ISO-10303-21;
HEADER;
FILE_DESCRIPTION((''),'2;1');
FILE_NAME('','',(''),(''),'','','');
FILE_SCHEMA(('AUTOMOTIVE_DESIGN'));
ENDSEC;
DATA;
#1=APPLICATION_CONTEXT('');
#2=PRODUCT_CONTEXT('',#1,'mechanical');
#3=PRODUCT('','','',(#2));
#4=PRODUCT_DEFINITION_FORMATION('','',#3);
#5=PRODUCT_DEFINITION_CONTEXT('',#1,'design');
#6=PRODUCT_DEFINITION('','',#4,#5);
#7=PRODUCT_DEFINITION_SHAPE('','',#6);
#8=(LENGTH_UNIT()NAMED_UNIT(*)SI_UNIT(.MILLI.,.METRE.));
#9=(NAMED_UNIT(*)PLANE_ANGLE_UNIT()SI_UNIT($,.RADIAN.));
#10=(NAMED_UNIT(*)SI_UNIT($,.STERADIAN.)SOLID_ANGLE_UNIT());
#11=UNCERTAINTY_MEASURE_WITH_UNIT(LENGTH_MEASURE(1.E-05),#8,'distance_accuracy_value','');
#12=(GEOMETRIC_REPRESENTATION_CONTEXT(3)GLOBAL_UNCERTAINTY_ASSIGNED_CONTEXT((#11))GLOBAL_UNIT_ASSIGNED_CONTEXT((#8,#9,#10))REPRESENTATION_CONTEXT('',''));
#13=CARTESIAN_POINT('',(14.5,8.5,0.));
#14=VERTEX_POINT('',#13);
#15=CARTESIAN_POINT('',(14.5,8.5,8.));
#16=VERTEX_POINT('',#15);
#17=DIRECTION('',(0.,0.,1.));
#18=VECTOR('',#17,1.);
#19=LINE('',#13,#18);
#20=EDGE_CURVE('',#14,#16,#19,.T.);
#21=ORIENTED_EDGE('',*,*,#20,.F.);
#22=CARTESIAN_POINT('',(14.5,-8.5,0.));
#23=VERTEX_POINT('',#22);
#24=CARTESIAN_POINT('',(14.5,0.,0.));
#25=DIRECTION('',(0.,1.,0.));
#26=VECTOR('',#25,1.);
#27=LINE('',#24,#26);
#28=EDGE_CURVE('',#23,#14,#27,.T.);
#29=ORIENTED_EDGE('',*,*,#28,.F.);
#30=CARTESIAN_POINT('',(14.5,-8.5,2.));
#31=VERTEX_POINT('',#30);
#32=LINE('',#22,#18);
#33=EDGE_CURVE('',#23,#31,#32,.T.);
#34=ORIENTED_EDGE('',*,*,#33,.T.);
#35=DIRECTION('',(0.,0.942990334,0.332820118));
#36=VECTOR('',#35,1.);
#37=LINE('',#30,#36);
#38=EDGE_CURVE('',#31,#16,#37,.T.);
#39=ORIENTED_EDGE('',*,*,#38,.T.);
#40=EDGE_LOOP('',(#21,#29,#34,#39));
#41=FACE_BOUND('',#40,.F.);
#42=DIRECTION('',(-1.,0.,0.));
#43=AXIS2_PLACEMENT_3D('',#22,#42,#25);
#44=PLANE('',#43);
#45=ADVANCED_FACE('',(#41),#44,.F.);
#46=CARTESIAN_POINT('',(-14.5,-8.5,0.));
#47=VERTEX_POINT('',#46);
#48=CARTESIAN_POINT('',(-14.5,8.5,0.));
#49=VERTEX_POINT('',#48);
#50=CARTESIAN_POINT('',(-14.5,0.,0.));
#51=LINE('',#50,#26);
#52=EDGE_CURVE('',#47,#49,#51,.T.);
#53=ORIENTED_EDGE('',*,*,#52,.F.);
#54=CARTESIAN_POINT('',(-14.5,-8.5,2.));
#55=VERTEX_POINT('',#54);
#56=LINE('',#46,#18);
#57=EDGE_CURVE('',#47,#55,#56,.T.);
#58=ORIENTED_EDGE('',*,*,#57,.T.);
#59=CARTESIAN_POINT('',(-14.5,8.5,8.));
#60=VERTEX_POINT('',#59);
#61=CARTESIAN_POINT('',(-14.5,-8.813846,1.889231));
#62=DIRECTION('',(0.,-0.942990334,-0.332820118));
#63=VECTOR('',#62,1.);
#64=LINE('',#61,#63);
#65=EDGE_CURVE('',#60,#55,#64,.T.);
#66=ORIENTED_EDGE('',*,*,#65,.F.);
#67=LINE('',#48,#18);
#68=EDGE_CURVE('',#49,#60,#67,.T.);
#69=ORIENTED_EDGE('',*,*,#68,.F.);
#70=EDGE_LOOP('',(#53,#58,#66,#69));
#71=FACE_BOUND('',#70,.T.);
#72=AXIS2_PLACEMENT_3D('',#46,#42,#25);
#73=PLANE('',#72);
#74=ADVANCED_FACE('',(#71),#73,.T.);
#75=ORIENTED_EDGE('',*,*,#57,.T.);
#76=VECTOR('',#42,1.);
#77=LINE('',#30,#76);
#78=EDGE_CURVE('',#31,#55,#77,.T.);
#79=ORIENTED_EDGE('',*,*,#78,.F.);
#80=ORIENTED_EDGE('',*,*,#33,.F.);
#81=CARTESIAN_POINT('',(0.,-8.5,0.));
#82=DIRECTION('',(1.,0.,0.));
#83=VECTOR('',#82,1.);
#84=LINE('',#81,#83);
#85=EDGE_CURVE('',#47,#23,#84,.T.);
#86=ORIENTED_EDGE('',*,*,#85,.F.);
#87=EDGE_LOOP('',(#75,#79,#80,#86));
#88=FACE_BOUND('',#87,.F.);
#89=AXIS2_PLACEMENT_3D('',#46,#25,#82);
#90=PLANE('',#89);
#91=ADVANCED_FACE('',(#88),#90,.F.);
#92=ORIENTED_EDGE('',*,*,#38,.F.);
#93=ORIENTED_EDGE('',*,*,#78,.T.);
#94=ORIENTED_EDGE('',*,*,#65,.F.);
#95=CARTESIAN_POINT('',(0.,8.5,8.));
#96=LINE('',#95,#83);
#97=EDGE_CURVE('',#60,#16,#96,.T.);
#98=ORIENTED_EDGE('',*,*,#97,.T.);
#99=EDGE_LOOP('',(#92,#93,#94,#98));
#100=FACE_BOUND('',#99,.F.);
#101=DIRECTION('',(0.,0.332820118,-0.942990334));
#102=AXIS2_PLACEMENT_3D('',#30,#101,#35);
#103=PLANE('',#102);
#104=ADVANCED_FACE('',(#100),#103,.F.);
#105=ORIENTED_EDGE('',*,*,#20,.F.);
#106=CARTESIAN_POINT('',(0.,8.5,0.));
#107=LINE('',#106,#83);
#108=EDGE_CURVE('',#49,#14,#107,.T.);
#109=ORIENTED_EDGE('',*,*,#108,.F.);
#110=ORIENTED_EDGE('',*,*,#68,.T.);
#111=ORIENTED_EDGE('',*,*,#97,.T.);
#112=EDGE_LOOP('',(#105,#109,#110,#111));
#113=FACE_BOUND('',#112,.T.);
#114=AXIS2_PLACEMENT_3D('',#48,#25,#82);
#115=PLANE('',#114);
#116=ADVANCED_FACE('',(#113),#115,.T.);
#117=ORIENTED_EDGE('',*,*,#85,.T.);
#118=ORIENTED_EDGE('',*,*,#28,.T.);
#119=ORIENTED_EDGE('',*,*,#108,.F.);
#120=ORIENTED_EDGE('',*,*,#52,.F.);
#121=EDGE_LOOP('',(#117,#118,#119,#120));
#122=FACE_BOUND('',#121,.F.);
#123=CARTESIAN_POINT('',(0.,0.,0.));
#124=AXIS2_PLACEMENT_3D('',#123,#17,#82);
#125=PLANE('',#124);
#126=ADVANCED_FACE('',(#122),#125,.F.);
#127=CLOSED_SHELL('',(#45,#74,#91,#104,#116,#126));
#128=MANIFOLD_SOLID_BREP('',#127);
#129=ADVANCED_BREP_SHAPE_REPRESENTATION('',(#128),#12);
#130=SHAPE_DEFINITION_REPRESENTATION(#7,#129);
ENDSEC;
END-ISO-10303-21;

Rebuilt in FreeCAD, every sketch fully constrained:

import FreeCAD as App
import Part
import Sketcher
Q = App.Units.Quantity


def add_polygon(sketch, points):
    """Adds a closed chain of lines whose ends are joined by coincident constraints."""
    first, n = sketch.GeometryCount, len(points)
    for a, b in zip(points, points[1:] + points[:1]):
        sketch.addGeometry(Part.LineSegment(App.Vector(*a, 0), App.Vector(*b, 0)), False)
    for i in range(n):
        sketch.addConstraint(Sketcher.Constraint("Coincident", first + i, 2, first + (i + 1) % n, 1))

doc = App.newDocument("Part")
params = doc.addObject("Spreadsheet::Sheet", "Params")
for row, (alias, value) in enumerate([
    ("sketch1_width", "29 mm"),
    ("sketch1_height", "17 mm"),
    ("pad1_length", "8 mm"),
    ("sketch2_width", "17 mm"),
    ("sketch2_height", "6 mm"),
    ("pocket1_length", "1143 mm"),
], start=1):
    params.set(f"A{row}", alias)
    params.set(f"B{row}", "=" + value)
    params.setAlias(f"B{row}", alias)

body = doc.addObject("PartDesign::Body", "Body")

# Sketch on XY plane
sketch1 = body.newObject("Sketcher::SketchObject", "Sketch")
sketch1.AttachmentSupport = (doc.getObject("XY_Plane"), [""])
sketch1.MapMode = "FlatFace"
add_polygon(sketch1, [(-14, 8), (-14, -8), (14, -8), (14, 8)])  # lines 0-3
sketch1.addConstraint([
    Sketcher.Constraint("Vertical", 0),
    Sketcher.Constraint("Horizontal", 1),
    Sketcher.Constraint("Vertical", 2),
    Sketcher.Constraint("Horizontal", 3),
    Sketcher.Constraint("Symmetric", 0, 2, 2, 2, -1, 1),
    Sketcher.Constraint("DistanceX", 1, 1, 1, 2, Q("29 mm")),
    Sketcher.Constraint("DistanceY", 0, 2, 0, 1, Q("17 mm")),
])
sketch1.setExpression("Constraints[9]", "Params.sketch1_width")
sketch1.setExpression("Constraints[10]", "Params.sketch1_height")
pad1 = body.newObject("PartDesign::Pad", "Pad")
pad1.Profile = sketch1
pad1.setExpression("Length", "Params.pad1_length")

# Sketch on YZ plane
sketch2 = body.newObject("Sketcher::SketchObject", "Sketch001")
sketch2.AttachmentSupport = (doc.getObject("YZ_Plane"), [""])
sketch2.MapMode = "FlatFace"
sketch2.AttachmentOffset = App.Placement(App.Vector(0, 0, 14.5), App.Rotation())
add_polygon(sketch2, [(-8, 2), (8, 8), (-8, 8)])  # lines 0-2
sketch2.addConstraint([
    Sketcher.Constraint("Horizontal", 1),
    Sketcher.Constraint("Vertical", 2),
    Sketcher.Constraint("DistanceX", 1, 2, 1, 1, Q("17 mm")),
    Sketcher.Constraint("DistanceY", 2, 2, 2, 1, Q("6 mm")),
    Sketcher.Constraint("DistanceY", -1, 1, 0, 2, Q("8 mm")),
    Sketcher.Constraint("DistanceX", -1, 1, 0, 2, Q("8.5 mm")),
])
sketch2.setExpression("Constraints[5]", "Params.sketch2_width")
sketch2.setExpression("Constraints[6]", "Params.sketch2_height")
pocket1 = body.newObject("PartDesign::Pocket", "Pocket")
pocket1.Profile = sketch2
pocket1.setExpression("Length", "Params.pocket1_length")

doc.recompute()
